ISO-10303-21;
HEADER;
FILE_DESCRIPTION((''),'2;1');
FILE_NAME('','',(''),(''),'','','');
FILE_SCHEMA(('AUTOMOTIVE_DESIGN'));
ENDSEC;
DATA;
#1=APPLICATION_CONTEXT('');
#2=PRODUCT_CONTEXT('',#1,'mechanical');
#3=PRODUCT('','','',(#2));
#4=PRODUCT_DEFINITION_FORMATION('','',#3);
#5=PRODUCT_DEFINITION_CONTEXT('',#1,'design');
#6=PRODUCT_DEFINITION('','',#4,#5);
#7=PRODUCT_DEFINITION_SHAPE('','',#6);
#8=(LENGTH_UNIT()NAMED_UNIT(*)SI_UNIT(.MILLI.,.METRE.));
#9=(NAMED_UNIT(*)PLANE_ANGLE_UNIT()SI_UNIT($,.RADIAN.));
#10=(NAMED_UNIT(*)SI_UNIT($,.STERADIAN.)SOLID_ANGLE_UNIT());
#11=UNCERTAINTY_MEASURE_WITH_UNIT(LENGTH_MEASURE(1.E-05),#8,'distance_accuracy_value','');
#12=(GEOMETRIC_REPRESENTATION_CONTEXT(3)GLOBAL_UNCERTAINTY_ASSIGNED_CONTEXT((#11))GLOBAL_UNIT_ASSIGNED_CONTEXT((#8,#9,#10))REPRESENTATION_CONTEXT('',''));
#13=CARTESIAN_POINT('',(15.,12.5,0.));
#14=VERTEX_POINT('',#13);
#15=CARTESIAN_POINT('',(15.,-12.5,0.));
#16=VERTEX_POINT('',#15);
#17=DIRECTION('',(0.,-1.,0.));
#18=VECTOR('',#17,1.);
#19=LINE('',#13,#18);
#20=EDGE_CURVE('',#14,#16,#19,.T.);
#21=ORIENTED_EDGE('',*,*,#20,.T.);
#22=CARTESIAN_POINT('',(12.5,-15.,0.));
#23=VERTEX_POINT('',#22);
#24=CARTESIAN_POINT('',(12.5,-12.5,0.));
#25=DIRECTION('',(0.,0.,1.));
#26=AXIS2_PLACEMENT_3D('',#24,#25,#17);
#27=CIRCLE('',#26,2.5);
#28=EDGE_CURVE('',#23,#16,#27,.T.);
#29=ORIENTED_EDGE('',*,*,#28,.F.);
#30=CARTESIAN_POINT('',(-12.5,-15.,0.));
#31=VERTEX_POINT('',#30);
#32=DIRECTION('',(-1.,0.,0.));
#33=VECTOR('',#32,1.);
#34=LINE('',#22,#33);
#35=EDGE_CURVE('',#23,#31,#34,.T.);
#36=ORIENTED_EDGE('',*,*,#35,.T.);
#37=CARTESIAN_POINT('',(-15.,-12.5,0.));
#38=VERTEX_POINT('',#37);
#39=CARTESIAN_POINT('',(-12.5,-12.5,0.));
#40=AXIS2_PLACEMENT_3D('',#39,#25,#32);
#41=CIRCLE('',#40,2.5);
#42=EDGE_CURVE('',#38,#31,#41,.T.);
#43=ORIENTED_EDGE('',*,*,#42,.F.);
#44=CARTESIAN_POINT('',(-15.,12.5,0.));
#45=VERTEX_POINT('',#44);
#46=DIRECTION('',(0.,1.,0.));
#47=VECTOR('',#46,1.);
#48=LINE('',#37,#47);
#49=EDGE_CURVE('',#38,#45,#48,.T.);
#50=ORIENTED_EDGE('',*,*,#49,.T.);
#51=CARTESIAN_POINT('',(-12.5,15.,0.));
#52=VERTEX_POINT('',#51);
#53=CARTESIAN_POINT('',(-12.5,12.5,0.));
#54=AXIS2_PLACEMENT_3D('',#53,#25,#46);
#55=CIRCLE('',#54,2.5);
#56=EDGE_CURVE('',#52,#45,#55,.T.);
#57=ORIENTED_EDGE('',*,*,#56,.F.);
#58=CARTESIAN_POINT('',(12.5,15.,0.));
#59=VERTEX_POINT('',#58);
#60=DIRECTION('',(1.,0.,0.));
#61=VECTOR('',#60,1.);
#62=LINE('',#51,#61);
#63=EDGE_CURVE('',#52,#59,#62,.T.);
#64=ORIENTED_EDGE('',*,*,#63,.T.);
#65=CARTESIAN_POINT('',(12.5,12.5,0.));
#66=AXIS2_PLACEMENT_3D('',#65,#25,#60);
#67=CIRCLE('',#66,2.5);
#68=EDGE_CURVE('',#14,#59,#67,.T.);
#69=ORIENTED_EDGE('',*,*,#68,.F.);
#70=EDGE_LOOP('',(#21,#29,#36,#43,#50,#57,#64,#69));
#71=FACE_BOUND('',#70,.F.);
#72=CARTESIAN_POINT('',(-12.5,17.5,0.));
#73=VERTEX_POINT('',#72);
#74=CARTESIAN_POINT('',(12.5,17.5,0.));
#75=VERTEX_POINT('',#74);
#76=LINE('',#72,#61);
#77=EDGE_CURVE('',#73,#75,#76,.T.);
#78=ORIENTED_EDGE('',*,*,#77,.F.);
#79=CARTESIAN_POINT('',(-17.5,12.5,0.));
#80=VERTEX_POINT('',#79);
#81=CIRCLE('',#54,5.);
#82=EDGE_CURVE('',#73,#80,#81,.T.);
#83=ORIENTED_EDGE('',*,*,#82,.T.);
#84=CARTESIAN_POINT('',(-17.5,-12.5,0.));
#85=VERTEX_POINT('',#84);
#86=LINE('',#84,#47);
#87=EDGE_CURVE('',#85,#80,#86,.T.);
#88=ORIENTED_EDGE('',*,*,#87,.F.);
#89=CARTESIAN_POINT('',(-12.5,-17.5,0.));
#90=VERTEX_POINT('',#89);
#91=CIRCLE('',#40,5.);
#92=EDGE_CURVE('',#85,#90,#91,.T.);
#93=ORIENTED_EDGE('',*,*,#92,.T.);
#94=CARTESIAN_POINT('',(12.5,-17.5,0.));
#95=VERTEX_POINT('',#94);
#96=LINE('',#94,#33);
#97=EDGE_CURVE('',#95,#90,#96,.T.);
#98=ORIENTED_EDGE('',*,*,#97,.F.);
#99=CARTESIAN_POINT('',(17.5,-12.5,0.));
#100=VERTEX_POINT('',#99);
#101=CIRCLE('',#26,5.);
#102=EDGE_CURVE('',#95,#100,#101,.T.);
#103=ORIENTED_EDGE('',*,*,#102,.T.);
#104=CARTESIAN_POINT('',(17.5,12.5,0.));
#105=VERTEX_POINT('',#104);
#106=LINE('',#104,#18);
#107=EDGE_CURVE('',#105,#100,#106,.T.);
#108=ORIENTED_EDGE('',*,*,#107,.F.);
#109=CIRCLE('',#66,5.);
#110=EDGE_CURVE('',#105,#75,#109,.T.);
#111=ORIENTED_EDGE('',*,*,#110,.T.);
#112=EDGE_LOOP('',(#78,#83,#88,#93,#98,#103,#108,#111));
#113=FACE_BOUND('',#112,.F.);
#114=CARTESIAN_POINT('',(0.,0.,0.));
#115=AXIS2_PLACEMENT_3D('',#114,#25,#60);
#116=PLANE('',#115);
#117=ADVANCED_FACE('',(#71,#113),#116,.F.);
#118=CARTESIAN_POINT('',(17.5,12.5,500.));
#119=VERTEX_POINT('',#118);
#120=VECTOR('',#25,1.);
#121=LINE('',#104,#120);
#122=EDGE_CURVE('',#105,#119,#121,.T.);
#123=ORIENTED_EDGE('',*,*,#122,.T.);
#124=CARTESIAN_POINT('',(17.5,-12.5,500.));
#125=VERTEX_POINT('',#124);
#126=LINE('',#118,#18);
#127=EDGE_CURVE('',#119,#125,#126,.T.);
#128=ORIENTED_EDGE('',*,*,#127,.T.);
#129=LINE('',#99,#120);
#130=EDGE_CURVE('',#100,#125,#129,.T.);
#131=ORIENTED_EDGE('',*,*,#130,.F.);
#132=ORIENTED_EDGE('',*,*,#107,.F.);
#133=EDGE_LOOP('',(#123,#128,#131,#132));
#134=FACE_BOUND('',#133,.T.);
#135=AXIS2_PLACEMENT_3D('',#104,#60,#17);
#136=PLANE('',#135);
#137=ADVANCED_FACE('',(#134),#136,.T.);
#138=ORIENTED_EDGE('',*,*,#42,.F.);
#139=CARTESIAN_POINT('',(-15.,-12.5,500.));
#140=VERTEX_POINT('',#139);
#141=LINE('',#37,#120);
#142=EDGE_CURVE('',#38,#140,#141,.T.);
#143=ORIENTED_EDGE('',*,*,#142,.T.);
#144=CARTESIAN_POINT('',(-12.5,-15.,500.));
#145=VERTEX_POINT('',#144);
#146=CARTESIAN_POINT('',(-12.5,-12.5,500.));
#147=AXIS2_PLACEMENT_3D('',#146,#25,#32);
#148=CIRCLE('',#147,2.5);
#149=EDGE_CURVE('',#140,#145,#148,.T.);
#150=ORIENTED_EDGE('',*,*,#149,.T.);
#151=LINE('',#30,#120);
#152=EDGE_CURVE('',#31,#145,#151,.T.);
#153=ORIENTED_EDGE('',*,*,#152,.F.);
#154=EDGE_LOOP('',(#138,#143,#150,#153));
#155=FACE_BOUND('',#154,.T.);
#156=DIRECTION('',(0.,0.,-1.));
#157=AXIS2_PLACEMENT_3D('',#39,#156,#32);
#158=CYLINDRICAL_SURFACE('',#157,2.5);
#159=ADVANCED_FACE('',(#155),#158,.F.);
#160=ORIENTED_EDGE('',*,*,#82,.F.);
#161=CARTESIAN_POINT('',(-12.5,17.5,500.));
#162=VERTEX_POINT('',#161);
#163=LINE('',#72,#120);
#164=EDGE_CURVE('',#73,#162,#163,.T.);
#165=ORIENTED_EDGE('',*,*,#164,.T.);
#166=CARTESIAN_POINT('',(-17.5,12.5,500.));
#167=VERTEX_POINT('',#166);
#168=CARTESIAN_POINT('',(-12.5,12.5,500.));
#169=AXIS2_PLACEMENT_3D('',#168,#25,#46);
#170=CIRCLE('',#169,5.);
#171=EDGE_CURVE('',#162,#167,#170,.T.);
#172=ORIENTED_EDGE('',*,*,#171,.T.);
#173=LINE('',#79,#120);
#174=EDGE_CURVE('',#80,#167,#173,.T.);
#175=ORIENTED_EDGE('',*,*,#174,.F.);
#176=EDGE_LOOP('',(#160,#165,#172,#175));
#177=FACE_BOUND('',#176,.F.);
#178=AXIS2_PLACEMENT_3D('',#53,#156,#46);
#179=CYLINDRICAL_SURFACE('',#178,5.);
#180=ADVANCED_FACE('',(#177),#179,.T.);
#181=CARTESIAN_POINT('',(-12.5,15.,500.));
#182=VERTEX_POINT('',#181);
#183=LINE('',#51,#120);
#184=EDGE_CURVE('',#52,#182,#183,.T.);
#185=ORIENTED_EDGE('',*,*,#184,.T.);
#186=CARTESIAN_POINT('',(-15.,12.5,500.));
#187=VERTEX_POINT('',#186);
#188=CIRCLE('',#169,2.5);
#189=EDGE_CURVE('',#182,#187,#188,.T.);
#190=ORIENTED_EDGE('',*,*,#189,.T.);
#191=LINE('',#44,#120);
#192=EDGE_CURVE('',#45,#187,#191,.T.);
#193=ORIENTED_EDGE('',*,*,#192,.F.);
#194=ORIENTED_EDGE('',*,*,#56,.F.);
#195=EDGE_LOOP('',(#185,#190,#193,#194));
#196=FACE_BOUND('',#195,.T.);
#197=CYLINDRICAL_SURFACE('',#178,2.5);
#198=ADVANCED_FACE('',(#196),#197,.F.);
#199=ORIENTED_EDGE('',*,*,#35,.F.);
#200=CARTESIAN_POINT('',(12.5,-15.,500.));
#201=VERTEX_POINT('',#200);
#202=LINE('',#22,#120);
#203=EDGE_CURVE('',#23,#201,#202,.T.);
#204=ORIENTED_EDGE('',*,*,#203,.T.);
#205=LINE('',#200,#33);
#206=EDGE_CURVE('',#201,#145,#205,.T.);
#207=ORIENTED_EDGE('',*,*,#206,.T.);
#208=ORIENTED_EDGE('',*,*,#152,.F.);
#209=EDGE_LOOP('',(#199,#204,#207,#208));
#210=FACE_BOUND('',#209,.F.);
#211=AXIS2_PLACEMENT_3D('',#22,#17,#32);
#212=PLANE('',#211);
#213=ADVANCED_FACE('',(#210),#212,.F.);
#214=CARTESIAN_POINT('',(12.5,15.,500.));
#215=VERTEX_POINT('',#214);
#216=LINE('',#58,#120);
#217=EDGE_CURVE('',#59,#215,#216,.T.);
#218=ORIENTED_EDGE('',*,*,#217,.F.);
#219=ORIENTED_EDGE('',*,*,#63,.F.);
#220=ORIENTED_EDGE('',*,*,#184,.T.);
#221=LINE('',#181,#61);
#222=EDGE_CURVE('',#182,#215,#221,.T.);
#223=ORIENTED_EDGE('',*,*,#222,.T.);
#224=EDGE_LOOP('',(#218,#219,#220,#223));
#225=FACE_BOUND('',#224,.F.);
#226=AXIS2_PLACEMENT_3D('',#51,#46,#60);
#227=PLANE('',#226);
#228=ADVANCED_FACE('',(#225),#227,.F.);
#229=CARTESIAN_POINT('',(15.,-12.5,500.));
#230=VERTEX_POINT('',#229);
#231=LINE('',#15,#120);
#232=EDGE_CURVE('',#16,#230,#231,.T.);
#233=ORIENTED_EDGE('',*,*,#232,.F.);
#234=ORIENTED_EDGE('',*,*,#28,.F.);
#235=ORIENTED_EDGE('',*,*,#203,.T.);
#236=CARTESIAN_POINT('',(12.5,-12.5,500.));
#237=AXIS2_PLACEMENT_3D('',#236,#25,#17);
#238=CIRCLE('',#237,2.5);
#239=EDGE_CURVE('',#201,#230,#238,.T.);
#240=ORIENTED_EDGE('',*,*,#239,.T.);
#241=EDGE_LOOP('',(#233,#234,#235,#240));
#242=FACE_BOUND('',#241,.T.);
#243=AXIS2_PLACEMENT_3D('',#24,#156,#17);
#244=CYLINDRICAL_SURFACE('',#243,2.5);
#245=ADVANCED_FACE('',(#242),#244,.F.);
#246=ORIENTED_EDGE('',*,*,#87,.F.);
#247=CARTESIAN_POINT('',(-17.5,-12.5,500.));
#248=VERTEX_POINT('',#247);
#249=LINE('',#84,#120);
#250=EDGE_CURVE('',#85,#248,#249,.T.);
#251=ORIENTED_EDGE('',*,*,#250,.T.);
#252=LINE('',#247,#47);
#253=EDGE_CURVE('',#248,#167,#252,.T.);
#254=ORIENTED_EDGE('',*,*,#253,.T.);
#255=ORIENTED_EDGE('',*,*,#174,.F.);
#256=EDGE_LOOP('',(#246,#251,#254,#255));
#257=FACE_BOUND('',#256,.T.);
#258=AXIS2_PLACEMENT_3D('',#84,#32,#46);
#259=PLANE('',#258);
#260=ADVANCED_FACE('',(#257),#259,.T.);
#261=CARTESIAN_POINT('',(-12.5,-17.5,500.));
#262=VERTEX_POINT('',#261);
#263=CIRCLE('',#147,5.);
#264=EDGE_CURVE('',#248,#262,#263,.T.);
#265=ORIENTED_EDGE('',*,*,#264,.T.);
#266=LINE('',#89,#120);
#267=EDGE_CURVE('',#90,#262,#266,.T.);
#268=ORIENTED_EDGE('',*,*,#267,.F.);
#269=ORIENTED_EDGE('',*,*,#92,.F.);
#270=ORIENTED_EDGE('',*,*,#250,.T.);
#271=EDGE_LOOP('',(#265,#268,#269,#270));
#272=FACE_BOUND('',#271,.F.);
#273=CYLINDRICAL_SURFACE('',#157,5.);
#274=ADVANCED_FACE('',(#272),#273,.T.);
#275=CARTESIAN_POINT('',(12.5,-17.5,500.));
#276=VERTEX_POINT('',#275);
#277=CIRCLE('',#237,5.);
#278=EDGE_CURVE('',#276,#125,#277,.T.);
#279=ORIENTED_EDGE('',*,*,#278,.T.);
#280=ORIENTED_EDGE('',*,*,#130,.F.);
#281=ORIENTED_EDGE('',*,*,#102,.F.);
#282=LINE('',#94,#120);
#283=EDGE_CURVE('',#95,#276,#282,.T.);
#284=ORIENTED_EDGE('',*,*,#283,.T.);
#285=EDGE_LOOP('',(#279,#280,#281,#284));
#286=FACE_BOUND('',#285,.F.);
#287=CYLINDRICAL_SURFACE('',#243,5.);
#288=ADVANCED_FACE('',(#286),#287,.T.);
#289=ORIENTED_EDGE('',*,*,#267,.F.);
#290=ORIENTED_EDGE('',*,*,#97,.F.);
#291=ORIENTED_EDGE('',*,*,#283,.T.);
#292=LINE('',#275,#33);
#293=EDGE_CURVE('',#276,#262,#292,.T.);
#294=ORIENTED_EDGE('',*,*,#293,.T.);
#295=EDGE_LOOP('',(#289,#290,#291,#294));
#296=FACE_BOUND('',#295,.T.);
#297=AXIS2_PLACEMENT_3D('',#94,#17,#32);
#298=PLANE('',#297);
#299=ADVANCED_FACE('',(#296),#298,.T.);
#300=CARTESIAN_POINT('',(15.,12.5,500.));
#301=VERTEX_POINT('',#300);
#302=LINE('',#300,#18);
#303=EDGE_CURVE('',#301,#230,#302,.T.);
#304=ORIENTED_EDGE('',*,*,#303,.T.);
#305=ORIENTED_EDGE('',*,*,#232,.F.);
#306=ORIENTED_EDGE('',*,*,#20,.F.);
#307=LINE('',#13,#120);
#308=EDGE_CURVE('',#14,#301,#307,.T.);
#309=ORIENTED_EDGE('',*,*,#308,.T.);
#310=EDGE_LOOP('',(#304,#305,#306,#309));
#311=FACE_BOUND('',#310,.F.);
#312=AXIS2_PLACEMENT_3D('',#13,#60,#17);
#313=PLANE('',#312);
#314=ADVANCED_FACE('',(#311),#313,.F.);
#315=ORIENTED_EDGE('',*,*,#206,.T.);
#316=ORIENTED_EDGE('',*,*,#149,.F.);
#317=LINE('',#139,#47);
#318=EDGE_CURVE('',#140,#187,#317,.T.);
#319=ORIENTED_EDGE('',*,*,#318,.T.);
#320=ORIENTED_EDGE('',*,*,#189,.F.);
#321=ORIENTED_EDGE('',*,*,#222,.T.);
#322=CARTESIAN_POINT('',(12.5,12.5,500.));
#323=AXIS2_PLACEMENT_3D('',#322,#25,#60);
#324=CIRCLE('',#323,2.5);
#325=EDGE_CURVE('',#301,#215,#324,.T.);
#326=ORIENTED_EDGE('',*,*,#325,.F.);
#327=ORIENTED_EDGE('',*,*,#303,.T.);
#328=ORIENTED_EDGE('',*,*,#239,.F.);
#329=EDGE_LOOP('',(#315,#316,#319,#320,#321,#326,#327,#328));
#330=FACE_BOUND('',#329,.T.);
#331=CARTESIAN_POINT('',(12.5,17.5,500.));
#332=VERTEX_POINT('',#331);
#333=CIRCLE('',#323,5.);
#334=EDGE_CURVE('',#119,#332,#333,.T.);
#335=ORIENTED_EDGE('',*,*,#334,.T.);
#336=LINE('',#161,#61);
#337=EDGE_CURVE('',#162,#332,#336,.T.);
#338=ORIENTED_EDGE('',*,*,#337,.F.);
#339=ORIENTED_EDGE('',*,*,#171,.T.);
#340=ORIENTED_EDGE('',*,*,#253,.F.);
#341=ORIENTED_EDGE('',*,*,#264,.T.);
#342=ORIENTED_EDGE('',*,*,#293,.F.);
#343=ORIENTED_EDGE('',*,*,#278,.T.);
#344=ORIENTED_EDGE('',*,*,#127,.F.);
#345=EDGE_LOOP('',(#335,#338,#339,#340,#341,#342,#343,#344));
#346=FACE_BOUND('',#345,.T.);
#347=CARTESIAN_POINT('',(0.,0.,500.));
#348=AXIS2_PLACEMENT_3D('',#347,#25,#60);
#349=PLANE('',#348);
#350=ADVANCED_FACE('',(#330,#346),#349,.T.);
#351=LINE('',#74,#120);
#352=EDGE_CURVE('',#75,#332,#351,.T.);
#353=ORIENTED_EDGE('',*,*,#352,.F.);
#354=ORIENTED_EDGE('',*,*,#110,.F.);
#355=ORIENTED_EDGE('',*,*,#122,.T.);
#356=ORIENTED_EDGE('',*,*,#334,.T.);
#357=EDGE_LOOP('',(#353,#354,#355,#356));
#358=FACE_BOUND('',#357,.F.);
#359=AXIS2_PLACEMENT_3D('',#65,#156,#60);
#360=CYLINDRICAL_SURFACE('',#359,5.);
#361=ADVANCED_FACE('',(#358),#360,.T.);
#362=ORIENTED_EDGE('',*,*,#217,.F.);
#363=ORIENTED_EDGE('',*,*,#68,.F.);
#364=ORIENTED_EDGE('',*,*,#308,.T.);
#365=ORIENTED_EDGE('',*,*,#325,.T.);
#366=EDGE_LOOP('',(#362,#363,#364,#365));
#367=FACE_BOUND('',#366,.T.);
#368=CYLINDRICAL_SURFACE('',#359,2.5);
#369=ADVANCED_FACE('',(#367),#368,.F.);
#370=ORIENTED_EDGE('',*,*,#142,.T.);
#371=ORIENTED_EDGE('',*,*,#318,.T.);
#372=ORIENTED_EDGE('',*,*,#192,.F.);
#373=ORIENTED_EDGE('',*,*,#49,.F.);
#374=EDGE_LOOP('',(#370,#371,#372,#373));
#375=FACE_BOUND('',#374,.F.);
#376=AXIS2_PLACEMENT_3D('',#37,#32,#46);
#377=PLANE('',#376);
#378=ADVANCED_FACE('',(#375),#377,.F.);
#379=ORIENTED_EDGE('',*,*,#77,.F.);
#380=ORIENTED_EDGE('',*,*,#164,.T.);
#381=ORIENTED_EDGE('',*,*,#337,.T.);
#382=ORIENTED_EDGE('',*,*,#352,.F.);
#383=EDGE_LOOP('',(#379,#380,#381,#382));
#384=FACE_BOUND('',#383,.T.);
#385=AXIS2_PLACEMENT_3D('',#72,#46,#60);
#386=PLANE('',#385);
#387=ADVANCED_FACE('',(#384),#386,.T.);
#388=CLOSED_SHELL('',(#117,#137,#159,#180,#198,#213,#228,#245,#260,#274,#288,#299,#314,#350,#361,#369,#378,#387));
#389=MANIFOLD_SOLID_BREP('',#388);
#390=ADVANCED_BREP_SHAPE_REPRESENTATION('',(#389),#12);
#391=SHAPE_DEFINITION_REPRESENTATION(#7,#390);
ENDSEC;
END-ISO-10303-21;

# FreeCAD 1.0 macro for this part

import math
import FreeCAD as App
import Part
import Sketcher

V = App.Vector

doc = App.newDocument("Part")
body = doc.addObject("PartDesign::Body", "Body")

# Sketch on XY plane
sketch1 = body.newObject("Sketcher::SketchObject", "Sketch")
sketch1.AttachmentSupport = (doc.getObject("XY_Plane"), [""])
sketch1.MapMode = "FlatFace"
sketch1.addGeometry(Part.LineSegment(V(-17.5, 12.5, 0), V(-17.5, -12.5, 0)), False)
sketch1.addGeometry(Part.ArcOfCircle(Part.Circle(V(-12.5, -12.5, 0), V(0, 0, 1), 5), math.radians(180), math.radians(270)), False)
sketch1.addGeometry(Part.LineSegment(V(-12.5, -17.5, 0), V(12.5, -17.5, 0)), False)
sketch1.addGeometry(Part.ArcOfCircle(Part.Circle(V(12.5, -12.5, 0), V(0, 0, 1), 5), math.radians(-90), math.radians(0)), False)
sketch1.addGeometry(Part.LineSegment(V(17.5, -12.5, 0), V(17.5, 12.5, 0)), False)
sketch1.addGeometry(Part.ArcOfCircle(Part.Circle(V(12.5, 12.5, 0), V(0, 0, 1), 5), math.radians(0), math.radians(90)), False)
sketch1.addGeometry(Part.LineSegment(V(12.5, 17.5, 0), V(-12.5, 17.5, 0)), False)
sketch1.addGeometry(Part.ArcOfCircle(Part.Circle(V(-12.5, 12.5, 0), V(0, 0, 1), 5), math.radians(90), math.radians(180)), False)
sketch1.addGeometry(Part.ArcOfCircle(Part.Circle(V(-12.5, 12.5, 0), V(0, 0, 1), 2.5), math.radians(90), math.radians(180)), False)
sketch1.addGeometry(Part.LineSegment(V(-12.5, 15, 0), V(12.5, 15, 0)), False)
sketch1.addGeometry(Part.ArcOfCircle(Part.Circle(V(12.5, 12.5, 0), V(0, 0, 1), 2.5), math.radians(0), math.radians(90)), False)
sketch1.addGeometry(Part.LineSegment(V(15, 12.5, 0), V(15, -12.5, 0)), False)
sketch1.addGeometry(Part.ArcOfCircle(Part.Circle(V(12.5, -12.5, 0), V(0, 0, 1), 2.5), math.radians(-90), math.radians(0)), False)
sketch1.addGeometry(Part.LineSegment(V(12.5, -15, 0), V(-12.5, -15, 0)), False)
sketch1.addGeometry(Part.ArcOfCircle(Part.Circle(V(-12.5, -12.5, 0), V(0, 0, 1), 2.5), math.radians(180), math.radians(270)), False)
sketch1.addGeometry(Part.LineSegment(V(-15, -12.5, 0), V(-15, 12.5, 0)), False)
sketch1.addConstraint(Sketcher.Constraint("Tangent", 0, 2, 1, 1))
sketch1.addConstraint(Sketcher.Constraint("Tangent", 1, 2, 2, 1))
sketch1.addConstraint(Sketcher.Constraint("Tangent", 2, 2, 3, 1))
sketch1.addConstraint(Sketcher.Constraint("Tangent", 3, 2, 4, 1))
sketch1.addConstraint(Sketcher.Constraint("Tangent", 4, 2, 5, 1))
sketch1.addConstraint(Sketcher.Constraint("Tangent", 5, 2, 6, 1))
sketch1.addConstraint(Sketcher.Constraint("Tangent", 6, 2, 7, 1))
sketch1.addConstraint(Sketcher.Constraint("Tangent", 7, 2, 0, 1))
sketch1.addConstraint(Sketcher.Constraint("Tangent", 8, 1, 9, 1))
sketch1.addConstraint(Sketcher.Constraint("Tangent", 9, 2, 10, 2))
sketch1.addConstraint(Sketcher.Constraint("Tangent", 10, 1, 11, 1))
sketch1.addConstraint(Sketcher.Constraint("Tangent", 11, 2, 12, 2))
sketch1.addConstraint(Sketcher.Constraint("Tangent", 12, 1, 13, 1))
sketch1.addConstraint(Sketcher.Constraint("Tangent", 13, 2, 14, 2))
sketch1.addConstraint(Sketcher.Constraint("Tangent", 14, 1, 15, 1))
sketch1.addConstraint(Sketcher.Constraint("Tangent", 15, 2, 8, 2))
sketch1.addConstraint(Sketcher.Constraint("Vertical", 0))
sketch1.addConstraint(Sketcher.Constraint("Horizontal", 2))
sketch1.addConstraint(Sketcher.Constraint("Vertical", 4))
sketch1.addConstraint(Sketcher.Constraint("Horizontal", 6))
sketch1.addConstraint(Sketcher.Constraint("Horizontal", 9))
sketch1.addConstraint(Sketcher.Constraint("Vertical", 11))
sketch1.addConstraint(Sketcher.Constraint("Horizontal", 13))
sketch1.addConstraint(Sketcher.Constraint("Vertical", 15))
sketch1.addConstraint(Sketcher.Constraint("Coincident", 8, 3, 7, 3))
sketch1.addConstraint(Sketcher.Constraint("Coincident", 10, 3, 5, 3))
sketch1.addConstraint(Sketcher.Constraint("Coincident", 12, 3, 3, 3))
sketch1.addConstraint(Sketcher.Constraint("Equal", 1, 3))
sketch1.addConstraint(Sketcher.Constraint("Equal", 3, 5))
sketch1.addConstraint(Sketcher.Constraint("Equal", 5, 7))
sketch1.addConstraint(Sketcher.Constraint("Equal", 12, 14))
sketch1.addConstraint(Sketcher.Constraint("Symmetric", 1, 3, 5, 3, -1, 1))
sketch1.addConstraint(Sketcher.Constraint("Equal", 13, 0))
sketch1.addConstraint(Sketcher.Constraint("Radius", 1, 5.0))
sketch1.addConstraint(Sketcher.Constraint("Radius", 8, 2.5))
sketch1.addConstraint(Sketcher.Constraint("DistanceX", 0, 2, -1, 1, 17.5))
pad1 = body.newObject("PartDesign::Pad", "Pad")
pad1.Profile = sketch1
pad1.Length = 500

doc.recompute()
